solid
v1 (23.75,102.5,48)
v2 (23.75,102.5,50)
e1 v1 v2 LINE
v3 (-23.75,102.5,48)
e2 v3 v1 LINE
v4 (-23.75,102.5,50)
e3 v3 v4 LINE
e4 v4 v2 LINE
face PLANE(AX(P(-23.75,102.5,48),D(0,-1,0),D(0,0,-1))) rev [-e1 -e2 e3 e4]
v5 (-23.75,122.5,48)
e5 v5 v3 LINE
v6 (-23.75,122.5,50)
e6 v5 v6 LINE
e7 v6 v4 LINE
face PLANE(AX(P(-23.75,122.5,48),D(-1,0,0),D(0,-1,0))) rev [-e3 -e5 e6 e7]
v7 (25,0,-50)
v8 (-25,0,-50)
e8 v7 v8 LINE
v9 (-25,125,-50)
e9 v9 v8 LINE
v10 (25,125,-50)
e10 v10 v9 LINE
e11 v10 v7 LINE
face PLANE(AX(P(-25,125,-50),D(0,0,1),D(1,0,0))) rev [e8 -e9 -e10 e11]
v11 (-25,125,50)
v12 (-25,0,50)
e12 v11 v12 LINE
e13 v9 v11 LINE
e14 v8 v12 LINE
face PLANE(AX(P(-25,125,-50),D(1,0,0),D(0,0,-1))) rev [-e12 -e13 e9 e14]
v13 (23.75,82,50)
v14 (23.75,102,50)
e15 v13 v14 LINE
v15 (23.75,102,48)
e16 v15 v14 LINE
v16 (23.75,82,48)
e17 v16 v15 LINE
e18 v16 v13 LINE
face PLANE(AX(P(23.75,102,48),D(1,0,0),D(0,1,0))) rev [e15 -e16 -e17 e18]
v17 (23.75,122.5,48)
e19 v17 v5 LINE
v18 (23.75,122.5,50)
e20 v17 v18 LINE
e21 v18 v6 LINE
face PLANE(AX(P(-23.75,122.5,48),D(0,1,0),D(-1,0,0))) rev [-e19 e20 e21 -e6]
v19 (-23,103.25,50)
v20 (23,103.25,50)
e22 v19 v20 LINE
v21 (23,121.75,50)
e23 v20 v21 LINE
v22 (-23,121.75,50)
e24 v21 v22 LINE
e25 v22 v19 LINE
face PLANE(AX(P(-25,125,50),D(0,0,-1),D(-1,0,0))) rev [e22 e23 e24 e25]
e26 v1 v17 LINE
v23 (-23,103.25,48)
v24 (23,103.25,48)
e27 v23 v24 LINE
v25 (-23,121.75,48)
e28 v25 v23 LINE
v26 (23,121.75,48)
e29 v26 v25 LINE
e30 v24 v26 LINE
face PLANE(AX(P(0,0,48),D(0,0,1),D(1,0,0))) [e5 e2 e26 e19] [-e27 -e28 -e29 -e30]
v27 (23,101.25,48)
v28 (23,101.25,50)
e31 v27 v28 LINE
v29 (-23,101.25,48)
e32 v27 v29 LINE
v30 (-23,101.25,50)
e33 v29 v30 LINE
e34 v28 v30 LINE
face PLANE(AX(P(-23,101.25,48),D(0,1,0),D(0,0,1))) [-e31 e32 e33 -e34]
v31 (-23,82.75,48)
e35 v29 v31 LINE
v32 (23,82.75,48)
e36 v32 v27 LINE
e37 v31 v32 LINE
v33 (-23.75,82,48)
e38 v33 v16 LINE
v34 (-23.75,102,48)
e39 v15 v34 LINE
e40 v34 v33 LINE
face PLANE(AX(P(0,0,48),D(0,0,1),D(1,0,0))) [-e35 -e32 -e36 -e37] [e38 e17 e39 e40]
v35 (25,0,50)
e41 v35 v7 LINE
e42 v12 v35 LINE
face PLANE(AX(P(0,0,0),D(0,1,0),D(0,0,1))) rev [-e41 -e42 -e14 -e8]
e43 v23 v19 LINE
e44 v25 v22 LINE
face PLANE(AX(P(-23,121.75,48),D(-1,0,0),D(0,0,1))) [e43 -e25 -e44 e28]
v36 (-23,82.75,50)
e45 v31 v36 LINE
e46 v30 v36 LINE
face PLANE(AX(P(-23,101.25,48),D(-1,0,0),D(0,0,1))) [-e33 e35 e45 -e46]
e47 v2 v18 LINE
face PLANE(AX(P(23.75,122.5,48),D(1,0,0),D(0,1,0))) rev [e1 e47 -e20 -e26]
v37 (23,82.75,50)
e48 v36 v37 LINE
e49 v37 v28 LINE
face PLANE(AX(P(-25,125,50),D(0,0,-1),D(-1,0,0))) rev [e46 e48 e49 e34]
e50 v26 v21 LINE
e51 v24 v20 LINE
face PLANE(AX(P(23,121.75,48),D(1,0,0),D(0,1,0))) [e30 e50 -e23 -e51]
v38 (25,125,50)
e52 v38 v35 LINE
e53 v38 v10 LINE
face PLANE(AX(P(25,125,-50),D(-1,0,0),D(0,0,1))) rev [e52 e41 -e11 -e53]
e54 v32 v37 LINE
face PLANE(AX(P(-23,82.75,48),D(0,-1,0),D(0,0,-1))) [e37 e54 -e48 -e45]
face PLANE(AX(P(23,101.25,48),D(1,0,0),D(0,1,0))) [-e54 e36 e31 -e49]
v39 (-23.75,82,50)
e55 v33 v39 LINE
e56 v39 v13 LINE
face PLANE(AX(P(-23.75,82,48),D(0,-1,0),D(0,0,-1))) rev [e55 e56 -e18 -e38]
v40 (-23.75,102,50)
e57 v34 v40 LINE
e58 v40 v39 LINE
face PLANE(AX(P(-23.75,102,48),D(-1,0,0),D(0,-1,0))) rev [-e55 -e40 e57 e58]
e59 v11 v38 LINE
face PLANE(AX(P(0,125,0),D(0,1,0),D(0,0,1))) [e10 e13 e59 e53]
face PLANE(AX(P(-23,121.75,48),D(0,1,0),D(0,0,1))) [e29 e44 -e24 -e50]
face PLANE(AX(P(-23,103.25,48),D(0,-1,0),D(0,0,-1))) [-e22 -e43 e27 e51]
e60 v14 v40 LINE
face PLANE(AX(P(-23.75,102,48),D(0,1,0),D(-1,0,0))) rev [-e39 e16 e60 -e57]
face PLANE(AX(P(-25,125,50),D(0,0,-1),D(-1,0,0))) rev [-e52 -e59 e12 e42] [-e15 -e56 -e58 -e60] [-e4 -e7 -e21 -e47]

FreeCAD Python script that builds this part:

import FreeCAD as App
import Part
import Sketcher

V = App.Vector

doc = App.newDocument("Part")
body = doc.addObject("PartDesign::Body", "Body")

sketch1 = doc.addObject("Sketcher::SketchObject", "Sketch")
body.addObject(sketch1)
sketch1.AttachmentSupport = (doc.XZ_Plane, [""])
sketch1.MapMode = "FlatFace"
sketch1.addGeometry(Part.LineSegment(V(-25, -50, 0), V(-25, 50, 0)), False)
sketch1.addGeometry(Part.LineSegment(V(-25, 50, 0), V(25, 50, 0)), False)
sketch1.addGeometry(Part.LineSegment(V(25, 50, 0), V(25, -50, 0)), False)
sketch1.addGeometry(Part.LineSegment(V(25, -50, 0), V(-25, -50, 0)), False)
sketch1.addConstraint(Sketcher.Constraint("Coincident", 0, 2, 1, 1))
sketch1.addConstraint(Sketcher.Constraint("Coincident", 1, 2, 2, 1))
sketch1.addConstraint(Sketcher.Constraint("Coincident", 2, 2, 3, 1))
sketch1.addConstraint(Sketcher.Constraint("Coincident", 3, 2, 0, 1))
sketch1.addConstraint(Sketcher.Constraint("Vertical", 0))
sketch1.addConstraint(Sketcher.Constraint("Horizontal", 1))
sketch1.addConstraint(Sketcher.Constraint("Vertical", 2))
sketch1.addConstraint(Sketcher.Constraint("Horizontal", 3))
sketch1.addConstraint(Sketcher.Constraint("Symmetric", 0, 2, 2, 2, -1, 1))
sketch1.addConstraint(Sketcher.Constraint("DistanceX", 1, 1, 1, 2, 50.0))
sketch1.addConstraint(Sketcher.Constraint("DistanceY", 0, 1, 0, 2, 100.0))
pad1 = doc.addObject("PartDesign::Pad", "Pad")
body.addObject(pad1)
pad1.Profile = sketch1
pad1.Length = 125
pad1.Reversed = True

sketch2 = doc.addObject("Sketcher::SketchObject", "Sketch001")
body.addObject(sketch2)
sketch2.AttachmentSupport = (doc.XY_Plane, [""])
sketch2.MapMode = "FlatFace"
sketch2.AttachmentOffset = App.Placement(V(0, 0, 50), App.Rotation())
sketch2.addGeometry(Part.LineSegment(V(-24, 122, 0), V(-24, 102, 0)), False)
sketch2.addGeometry(Part.LineSegment(V(-24, 102, 0), V(24, 102, 0)), False)
sketch2.addGeometry(Part.LineSegment(V(24, 102, 0), V(24, 122, 0)), False)
sketch2.addGeometry(Part.LineSegment(V(24, 122, 0), V(-24, 122, 0)), False)
sketch2.addGeometry(Part.LineSegment(V(23, 103, 0), V(-23, 103, 0)), False)
sketch2.addGeometry(Part.LineSegment(V(-23, 103, 0), V(-23, 122, 0)), False)
sketch2.addGeometry(Part.LineSegment(V(-23, 122, 0), V(23, 122, 0)), False)
sketch2.addGeometry(Part.LineSegment(V(23, 122, 0), V(23, 103, 0)), False)
sketch2.addGeometry(Part.LineSegment(V(-24, 102, 0), V(-24, 82, 0)), False)
sketch2.addGeometry(Part.LineSegment(V(-24, 82, 0), V(24, 82, 0)), False)
sketch2.addGeometry(Part.LineSegment(V(24, 82, 0), V(24, 102, 0)), False)
sketch2.addGeometry(Part.LineSegment(V(24, 102, 0), V(-24, 102, 0)), False)
sketch2.addGeometry(Part.LineSegment(V(23, 83, 0), V(-23, 83, 0)), False)
sketch2.addGeometry(Part.LineSegment(V(-23, 83, 0), V(-23, 101, 0)), False)
sketch2.addGeometry(Part.LineSegment(V(-23, 101, 0), V(23, 101, 0)), False)
sketch2.addGeometry(Part.LineSegment(V(23, 101, 0), V(23, 83, 0)), False)
sketch2.addConstraint(Sketcher.Constraint("Coincident", 0, 2, 1, 1))
sketch2.addConstraint(Sketcher.Constraint("Coincident", 1, 2, 2, 1))
sketch2.addConstraint(Sketcher.Constraint("Coincident", 2, 2, 3, 1))
sketch2.addConstraint(Sketcher.Constraint("Coincident", 3, 2, 0, 1))
sketch2.addConstraint(Sketcher.Constraint("Coincident", 4, 2, 5, 1))
sketch2.addConstraint(Sketcher.Constraint("Coincident", 5, 2, 6, 1))
sketch2.addConstraint(Sketcher.Constraint("Coincident", 6, 2, 7, 1))
sketch2.addConstraint(Sketcher.Constraint("Coincident", 7, 2, 4, 1))
sketch2.addConstraint(Sketcher.Constraint("Coincident", 8, 2, 9, 1))
sketch2.addConstraint(Sketcher.Constraint("Coincident", 9, 2, 10, 1))
sketch2.addConstraint(Sketcher.Constraint("Coincident", 10, 2, 11, 1))
sketch2.addConstraint(Sketcher.Constraint("Coincident", 11, 2, 8, 1))
sketch2.addConstraint(Sketcher.Constraint("Coincident", 12, 2, 13, 1))
sketch2.addConstraint(Sketcher.Constraint("Coincident", 13, 2, 14, 1))
sketch2.addConstraint(Sketcher.Constraint("Coincident", 14, 2, 15, 1))
sketch2.addConstraint(Sketcher.Constraint("Coincident", 15, 2, 12, 1))
sketch2.addConstraint(Sketcher.Constraint("Vertical", 0))
sketch2.addConstraint(Sketcher.Constraint("Horizontal", 1))
sketch2.addConstraint(Sketcher.Constraint("Vertical", 2))
sketch2.addConstraint(Sketcher.Constraint("Horizontal", 3))
sketch2.addConstraint(Sketcher.Constraint("Horizontal", 4))
sketch2.addConstraint(Sketcher.Constraint("Vertical", 5))
sketch2.addConstraint(Sketcher.Constraint("Horizontal", 6))
sketch2.addConstraint(Sketcher.Constraint("Vertical", 7))
sketch2.addConstraint(Sketcher.Constraint("Vertical", 8))
sketch2.addConstraint(Sketcher.Constraint("Horizontal", 9))
sketch2.addConstraint(Sketcher.Constraint("Vertical", 10))
sketch2.addConstraint(Sketcher.Constraint("Horizontal", 11))
sketch2.addConstraint(Sketcher.Constraint("Horizontal", 12))
sketch2.addConstraint(Sketcher.Constraint("Vertical", 13))
sketch2.addConstraint(Sketcher.Constraint("Horizontal", 14))
sketch2.addConstraint(Sketcher.Constraint("Vertical", 15))
sketch2.addConstraint(Sketcher.Constraint("Vertical", 3, 2, 8, 2))
sketch2.addConstraint(Sketcher.Constraint("Vertical", 2, 2, 9, 2))
sketch2.addConstraint(Sketcher.Constraint("Vertical", 5, 2, 12, 2))
sketch2.addConstraint(Sketcher.Constraint("Vertical", 7, 2, 14, 2))
sketch2.addConstraint(Sketcher.Constraint("Equal", 2, 8))
sketch2.addConstraint(Sketcher.Constraint("Equal", 7, 13))
sketch2.addConstraint(Sketcher.Constraint("DistanceX", 4, 2, 4, 1, 46.0))
sketch2.addConstraint(Sketcher.Constraint("DistanceY", 0, 2, 0, 1, 20.0))
sketch2.addConstraint(Sketcher.Constraint("DistanceX", 1, 1, 1, 2, 47.5))
sketch2.addConstraint(Sketcher.Constraint("DistanceY", 5, 1, 5, 2, 18.5))
sketch2.addConstraint(Sketcher.Constraint("DistanceX", 4, 2, -1, 1, 23.0))
sketch2.addConstraint(Sketcher.Constraint("DistanceY", -1, 1, 8, 2, 82.0))
sketch2.addConstraint(Sketcher.Constraint("DistanceY", 12, 2, 5, 2, 39.0))
sketch2.addConstraint(Sketcher.Constraint("DistanceY", -1, 1, 0, 2, 102.5))
sketch2.addConstraint(Sketcher.Constraint("DistanceX", 0, 2, -1, 1, 23.75))
sketch2.addConstraint(Sketcher.Constraint("DistanceY", -1, 1, 4, 2, 103.25))
pocket1 = doc.addObject("PartDesign::Pocket", "Pocket")
body.addObject(pocket1)
pocket1.Profile = sketch2
pocket1.Length = 2

doc.recompute()
